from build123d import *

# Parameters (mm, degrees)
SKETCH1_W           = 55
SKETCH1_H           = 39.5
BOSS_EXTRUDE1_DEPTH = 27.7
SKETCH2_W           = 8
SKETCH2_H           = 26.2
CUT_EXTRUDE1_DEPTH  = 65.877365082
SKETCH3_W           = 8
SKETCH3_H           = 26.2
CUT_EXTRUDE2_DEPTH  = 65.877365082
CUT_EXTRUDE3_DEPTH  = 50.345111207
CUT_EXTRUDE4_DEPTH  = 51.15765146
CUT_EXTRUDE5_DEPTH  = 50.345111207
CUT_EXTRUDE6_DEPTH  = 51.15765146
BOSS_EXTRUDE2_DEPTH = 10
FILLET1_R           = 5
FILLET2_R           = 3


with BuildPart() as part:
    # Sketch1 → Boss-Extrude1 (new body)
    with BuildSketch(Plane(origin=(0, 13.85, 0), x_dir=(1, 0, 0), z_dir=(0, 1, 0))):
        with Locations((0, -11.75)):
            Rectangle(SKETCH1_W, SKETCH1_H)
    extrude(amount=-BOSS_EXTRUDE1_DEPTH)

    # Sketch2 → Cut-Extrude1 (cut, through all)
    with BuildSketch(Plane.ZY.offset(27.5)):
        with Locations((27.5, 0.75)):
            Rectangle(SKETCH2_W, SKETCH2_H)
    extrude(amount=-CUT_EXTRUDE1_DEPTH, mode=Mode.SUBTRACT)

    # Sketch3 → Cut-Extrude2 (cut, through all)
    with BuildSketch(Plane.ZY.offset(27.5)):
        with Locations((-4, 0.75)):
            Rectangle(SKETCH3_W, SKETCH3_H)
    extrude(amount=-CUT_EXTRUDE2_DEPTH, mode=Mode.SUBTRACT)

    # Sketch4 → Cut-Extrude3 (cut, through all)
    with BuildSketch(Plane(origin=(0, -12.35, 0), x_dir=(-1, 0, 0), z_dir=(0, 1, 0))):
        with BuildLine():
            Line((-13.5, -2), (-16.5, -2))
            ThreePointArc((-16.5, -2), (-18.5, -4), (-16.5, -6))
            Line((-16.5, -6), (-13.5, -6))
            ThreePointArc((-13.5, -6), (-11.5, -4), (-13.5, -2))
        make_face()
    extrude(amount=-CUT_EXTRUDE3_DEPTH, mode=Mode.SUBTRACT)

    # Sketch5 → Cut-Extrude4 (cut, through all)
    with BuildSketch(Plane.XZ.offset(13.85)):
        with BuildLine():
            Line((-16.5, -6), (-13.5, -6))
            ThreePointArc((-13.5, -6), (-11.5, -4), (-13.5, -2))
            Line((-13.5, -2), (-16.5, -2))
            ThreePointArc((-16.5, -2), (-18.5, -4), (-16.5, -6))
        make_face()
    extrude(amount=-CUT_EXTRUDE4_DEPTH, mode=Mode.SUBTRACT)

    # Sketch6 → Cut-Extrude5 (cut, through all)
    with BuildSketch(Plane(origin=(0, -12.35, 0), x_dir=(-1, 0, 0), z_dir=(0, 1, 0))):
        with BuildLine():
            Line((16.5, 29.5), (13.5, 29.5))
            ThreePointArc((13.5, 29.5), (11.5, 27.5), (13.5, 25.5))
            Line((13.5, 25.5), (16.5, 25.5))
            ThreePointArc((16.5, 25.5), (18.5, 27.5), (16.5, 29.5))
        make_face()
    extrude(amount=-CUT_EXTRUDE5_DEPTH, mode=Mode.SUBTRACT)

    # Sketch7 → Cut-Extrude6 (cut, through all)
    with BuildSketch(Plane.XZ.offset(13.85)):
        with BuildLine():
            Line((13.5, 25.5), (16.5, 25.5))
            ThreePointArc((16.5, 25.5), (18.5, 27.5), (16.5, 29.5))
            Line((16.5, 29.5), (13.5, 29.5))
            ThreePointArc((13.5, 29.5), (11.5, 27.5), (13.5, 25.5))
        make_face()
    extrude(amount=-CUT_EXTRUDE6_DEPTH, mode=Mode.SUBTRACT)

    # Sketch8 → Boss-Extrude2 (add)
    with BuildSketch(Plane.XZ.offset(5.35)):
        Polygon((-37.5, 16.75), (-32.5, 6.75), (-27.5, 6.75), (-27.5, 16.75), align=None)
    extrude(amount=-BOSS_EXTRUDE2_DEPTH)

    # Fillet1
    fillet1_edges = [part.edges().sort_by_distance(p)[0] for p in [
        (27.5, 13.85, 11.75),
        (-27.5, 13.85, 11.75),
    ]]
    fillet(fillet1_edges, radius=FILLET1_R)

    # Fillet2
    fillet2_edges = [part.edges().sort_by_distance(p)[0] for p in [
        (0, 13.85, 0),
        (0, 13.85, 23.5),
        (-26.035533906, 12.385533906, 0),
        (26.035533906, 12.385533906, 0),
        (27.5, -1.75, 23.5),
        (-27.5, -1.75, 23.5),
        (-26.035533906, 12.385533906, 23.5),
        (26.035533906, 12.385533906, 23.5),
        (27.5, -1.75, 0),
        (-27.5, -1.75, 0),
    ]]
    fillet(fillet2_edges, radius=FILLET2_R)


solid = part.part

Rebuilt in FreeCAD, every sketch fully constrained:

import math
import FreeCAD as App
import Part
import Sketcher
Q = App.Units.Quantity


def edges_at(feature, points):
    """Names of the edges that pass closest to the given points."""
    edges = feature.Shape.Edges
    near = lambda p: min(range(len(edges)), key=lambda i: edges[i].distToShape(Part.Vertex(*p))[0])
    return sorted({f"Edge{near(p) + 1}" for p in points})


def add_polygon(sketch, points):
    """Adds a closed chain of lines whose ends are joined by coincident constraints."""
    first, n = sketch.GeometryCount, len(points)
    for a, b in zip(points, points[1:] + points[:1]):
        sketch.addGeometry(Part.LineSegment(App.Vector(*a, 0), App.Vector(*b, 0)), False)
    for i in range(n):
        sketch.addConstraint(Sketcher.Constraint("Coincident", first + i, 2, first + (i + 1) % n, 1))

doc = App.newDocument("Part")
params = doc.addObject("Spreadsheet::Sheet", "Params")
for row, (alias, value) in enumerate([
    ("sketch1_width", "55 mm"),
    ("sketch1_height", "39.5 mm"),
    ("pad1_length", "27.7 mm"),
    ("sketch2_height", "8 mm"),
    ("sketch2_width", "26.2 mm"),
    ("sketch3_height", "8 mm"),
    ("sketch3_width", "26.2 mm"),
    ("sketch4_radius", "2 mm"),
    ("sketch4_width", "3 mm"),
    ("sketch5_radius", "2 mm"),
    ("sketch5_width", "3 mm"),
    ("sketch6_radius", "2 mm"),
    ("sketch6_width", "3 mm"),
    ("sketch7_radius", "2 mm"),
    ("sketch7_width", "3 mm"),
    ("sketch8_width", "5 mm"),
    ("sketch8_width2", "10 mm"),
    ("pad2_length", "10 mm"),
    ("fillet_radius", "5 mm"),
    ("fillet2_radius", "3 mm"),
], start=1):
    params.set(f"A{row}", alias)
    params.set(f"B{row}", "=" + value)
    params.setAlias(f"B{row}", alias)

body = doc.addObject("PartDesign::Body", "Body")

# Sketch on XZ plane
sketch1 = doc.addObject("Sketcher::SketchObject", "Sketch")
body.addObject(sketch1)
sketch1.AttachmentSupport = (doc.XZ_Plane, [""])
sketch1.MapMode = "FlatFace"
sketch1.AttachmentOffset = App.Placement(App.Vector(0, 0, -13.85), App.Rotation())
add_polygon(sketch1, [(-28, -8), (-28, 32), (28, 32), (28, -8)])  # lines 0-3
sketch1.addConstraint([
    Sketcher.Constraint("Vertical", 0),
    Sketcher.Constraint("Horizontal", 1),
    Sketcher.Constraint("Vertical", 2),
    Sketcher.Constraint("Horizontal", 3),
    Sketcher.Constraint("DistanceX", 1, 1, 1, 2, Q("55 mm")),
    Sketcher.Constraint("DistanceY", 0, 1, 0, 2, Q("39.5 mm")),
    Sketcher.Constraint("DistanceY", 2, 2, -1, 1, Q("8 mm")),
    Sketcher.Constraint("DistanceX", 0, 2, -1, 1, Q("27.5 mm")),
])
sketch1.setExpression("Constraints[8]", "Params.sketch1_width")
sketch1.setExpression("Constraints[9]", "Params.sketch1_height")
pad1 = doc.addObject("PartDesign::Pad", "Pad")
body.addObject(pad1)
pad1.Profile = sketch1
pad1.setExpression("Length", "Params.pad1_length")

# Sketch on YZ plane
sketch2 = doc.addObject("Sketcher::SketchObject", "Sketch001")
body.addObject(sketch2)
sketch2.AttachmentSupport = (doc.YZ_Plane, [""])
sketch2.MapMode = "FlatFace"
sketch2.AttachmentOffset = App.Placement(App.Vector(0, 0, -27.5), App.Rotation())
add_polygon(sketch2, [(14, 24), (-12, 24), (-12, 32), (14, 32)])  # lines 0-3
sketch2.addConstraint([
    Sketcher.Constraint("Horizontal", 0),
    Sketcher.Constraint("Vertical", 1),
    Sketcher.Constraint("Horizontal", 2),
    Sketcher.Constraint("Vertical", 3),
    Sketcher.Constraint("DistanceY", 1, 1, 1, 2, Q("8 mm")),
    Sketcher.Constraint("DistanceX", 0, 2, 0, 1, Q("26.2 mm")),
    Sketcher.Constraint("DistanceY", -1, 1, 0, 2, Q("23.5 mm")),
    Sketcher.Constraint("DistanceX", 0, 2, -1, 1, Q("12.35 mm")),
])
sketch2.setExpression("Constraints[8]", "Params.sketch2_height")
sketch2.setExpression("Constraints[9]", "Params.sketch2_width")
pocket1 = doc.addObject("PartDesign::Pocket", "Pocket")
body.addObject(pocket1)
pocket1.Profile = sketch2
pocket1.Type = "ThroughAll"
pocket1.Reversed = True

# Sketch on YZ plane
sketch3 = doc.addObject("Sketcher::SketchObject", "Sketch002")
body.addObject(sketch3)
sketch3.AttachmentSupport = (doc.YZ_Plane, [""])
sketch3.MapMode = "FlatFace"
sketch3.AttachmentOffset = App.Placement(App.Vector(0, 0, -27.5), App.Rotation())
add_polygon(sketch3, [(14, -8), (-12, -8), (-12, 0), (14, 0)])  # lines 0-3
sketch3.addConstraint([
    Sketcher.Constraint("Horizontal", 0),
    Sketcher.Constraint("Vertical", 1),
    Sketcher.Constraint("Horizontal", 2),
    Sketcher.Constraint("Vertical", 3),
    Sketcher.Constraint("PointOnObject", 1, 2, -1),
    Sketcher.Constraint("DistanceY", 1, 1, 1, 2, Q("8 mm")),
    Sketcher.Constraint("DistanceX", 0, 2, 0, 1, Q("26.2 mm")),
    Sketcher.Constraint("DistanceX", 0, 2, -1, 1, Q("12.35 mm")),
])
sketch3.setExpression("Constraints[9]", "Params.sketch3_height")
sketch3.setExpression("Constraints[10]", "Params.sketch3_width")
pocket2 = doc.addObject("PartDesign::Pocket", "Pocket001")
body.addObject(pocket2)
pocket2.Profile = sketch3
pocket2.Type = "ThroughAll"
pocket2.Reversed = True

# Sketch on XZ plane
sketch4 = doc.addObject("Sketcher::SketchObject", "Sketch003")
body.addObject(sketch4)
sketch4.AttachmentSupport = (doc.XZ_Plane, [""])
sketch4.MapMode = "FlatFace"
sketch4.AttachmentOffset = App.Placement(App.Vector(0, 0, 12.35), App.Rotation())
sketch4.addGeometry([
    Part.LineSegment(App.Vector(13.5, -2, 0), App.Vector(16.5, -2, 0)),
    Part.ArcOfCircle(Part.Circle(App.Vector(16.5, -4, 0), App.Vector(0, 0, 1), 2), math.radians(-90), math.radians(90)),
    Part.LineSegment(App.Vector(16.5, -6, 0), App.Vector(13.5, -6, 0)),
    Part.ArcOfCircle(Part.Circle(App.Vector(13.5, -4, 0), App.Vector(0, 0, 1), 2), math.radians(90), math.radians(270)),
], False)
sketch4.addConstraint([
    Sketcher.Constraint("Tangent", 0, 2, 1, 2),
    Sketcher.Constraint("Tangent", 1, 1, 2, 1),
    Sketcher.Constraint("Tangent", 2, 2, 3, 2),
    Sketcher.Constraint("Tangent", 3, 1, 0, 1),
    Sketcher.Constraint("Horizontal", 0),
    Sketcher.Constraint("Horizontal", 2),
    Sketcher.Constraint("Radius", 1, Q("2 mm")),
    Sketcher.Constraint("DistanceX", 0, 1, 0, 2, Q("3 mm")),
    Sketcher.Constraint("DistanceY", 1, 3, -1, 1, Q("4 mm")),
    Sketcher.Constraint("DistanceX", -1, 1, 1, 3, Q("16.5 mm")),
])
sketch4.setExpression("Constraints[6]", "Params.sketch4_radius")
sketch4.setExpression("Constraints[7]", "Params.sketch4_width")
pocket3 = doc.addObject("PartDesign::Pocket", "Pocket002")
body.addObject(pocket3)
pocket3.Profile = sketch4
pocket3.Type = "ThroughAll"
pocket3.Reversed = True

# Sketch on XZ plane
sketch5 = doc.addObject("Sketcher::SketchObject", "Sketch004")
body.addObject(sketch5)
sketch5.AttachmentSupport = (doc.XZ_Plane, [""])
sketch5.MapMode = "FlatFace"
sketch5.AttachmentOffset = App.Placement(App.Vector(0, 0, 13.85), App.Rotation())
sketch5.addGeometry([
    Part.LineSegment(App.Vector(-16.5, -6, 0), App.Vector(-13.5, -6, 0)),
    Part.ArcOfCircle(Part.Circle(App.Vector(-13.5, -4, 0), App.Vector(0, 0, 1), 2), math.radians(-90), math.radians(90)),
    Part.LineSegment(App.Vector(-13.5, -2, 0), App.Vector(-16.5, -2, 0)),
    Part.ArcOfCircle(Part.Circle(App.Vector(-16.5, -4, 0), App.Vector(0, 0, 1), 2), math.radians(90), math.radians(270)),
], False)
sketch5.addConstraint([
    Sketcher.Constraint("Tangent", 0, 2, 1, 1),
    Sketcher.Constraint("Tangent", 1, 2, 2, 1),
    Sketcher.Constraint("Tangent", 2, 2, 3, 1),
    Sketcher.Constraint("Tangent", 3, 2, 0, 1),
    Sketcher.Constraint("Horizontal", 0),
    Sketcher.Constraint("Horizontal", 2),
    Sketcher.Constraint("Radius", 1, Q("2 mm")),
    Sketcher.Constraint("DistanceX", 0, 1, 0, 2, Q("3 mm")),
    Sketcher.Constraint("DistanceY", 1, 3, -1, 1, Q("4 mm")),
    Sketcher.Constraint("DistanceX", 1, 3, -1, 1, Q("13.5 mm")),
])
sketch5.setExpression("Constraints[6]", "Params.sketch5_radius")
sketch5.setExpression("Constraints[7]", "Params.sketch5_width")
pocket4 = doc.addObject("PartDesign::Pocket", "Pocket003")
body.addObject(pocket4)
pocket4.Profile = sketch5
pocket4.Type = "ThroughAll"

# Sketch on XZ plane
sketch6 = doc.addObject("Sketcher::SketchObject", "Sketch005")
body.addObject(sketch6)
sketch6.AttachmentSupport = (doc.XZ_Plane, [""])
sketch6.MapMode = "FlatFace"
sketch6.AttachmentOffset = App.Placement(App.Vector(0, 0, 12.35), App.Rotation())
sketch6.addGeometry([
    Part.LineSegment(App.Vector(-16.5, 29.5, 0), App.Vector(-13.5, 29.5, 0)),
    Part.ArcOfCircle(Part.Circle(App.Vector(-13.5, 27.5, 0), App.Vector(0, 0, 1), 2), math.radians(-90), math.radians(90)),
    Part.LineSegment(App.Vector(-13.5, 25.5, 0), App.Vector(-16.5, 25.5, 0)),
    Part.ArcOfCircle(Part.Circle(App.Vector(-16.5, 27.5, 0), App.Vector(0, 0, 1), 2), math.radians(90), math.radians(270)),
], False)
sketch6.addConstraint([
    Sketcher.Constraint("Tangent", 0, 2, 1, 2),
    Sketcher.Constraint("Tangent", 1, 1, 2, 1),
    Sketcher.Constraint("Tangent", 2, 2, 3, 2),
    Sketcher.Constraint("Tangent", 3, 1, 0, 1),
    Sketcher.Constraint("Horizontal", 0),
    Sketcher.Constraint("Horizontal", 2),
    Sketcher.Constraint("Radius", 1, Q("2 mm")),
    Sketcher.Constraint("DistanceX", 0, 1, 0, 2, Q("3 mm")),
    Sketcher.Constraint("DistanceX", 1, 3, -1, 1, Q("13.5 mm")),
    Sketcher.Constraint("DistanceY", -1, 1, 1, 3, Q("27.5 mm")),
])
sketch6.setExpression("Constraints[6]", "Params.sketch6_radius")
sketch6.setExpression("Constraints[7]", "Params.sketch6_width")
pocket5 = doc.addObject("PartDesign::Pocket", "Pocket004")
body.addObject(pocket5)
pocket5.Profile = sketch6
pocket5.Type = "ThroughAll"
pocket5.Reversed = True

# Sketch on XZ plane
sketch7 = doc.addObject("Sketcher::SketchObject", "Sketch006")
body.addObject(sketch7)
sketch7.AttachmentSupport = (doc.XZ_Plane, [""])
sketch7.MapMode = "FlatFace"
sketch7.AttachmentOffset = App.Placement(App.Vector(0, 0, 13.85), App.Rotation())
sketch7.addGeometry([
    Part.LineSegment(App.Vector(13.5, 25.5, 0), App.Vector(16.5, 25.5, 0)),
    Part.ArcOfCircle(Part.Circle(App.Vector(16.5, 27.5, 0), App.Vector(0, 0, 1), 2), math.radians(-90), math.radians(90)),
    Part.LineSegment(App.Vector(16.5, 29.5, 0), App.Vector(13.5, 29.5, 0)),
    Part.ArcOfCircle(Part.Circle(App.Vector(13.5, 27.5, 0), App.Vector(0, 0, 1), 2), math.radians(90), math.radians(270)),
], False)
sketch7.addConstraint([
    Sketcher.Constraint("Tangent", 0, 2, 1, 1),
    Sketcher.Constraint("Tangent", 1, 2, 2, 1),
    Sketcher.Constraint("Tangent", 2, 2, 3, 1),
    Sketcher.Constraint("Tangent", 3, 2, 0, 1),
    Sketcher.Constraint("Horizontal", 0),
    Sketcher.Constraint("Horizontal", 2),
    Sketcher.Constraint("Radius", 1, Q("2 mm")),
    Sketcher.Constraint("DistanceX", 0, 1, 0, 2, Q("3 mm")),
    Sketcher.Constraint("DistanceX", -1, 1, 1, 3, Q("16.5 mm")),
    Sketcher.Constraint("DistanceY", -1, 1, 1, 3, Q("27.5 mm")),
])
sketch7.setExpression("Constraints[6]", "Params.sketch7_radius")
sketch7.setExpression("Constraints[7]", "Params.sketch7_width")
pocket6 = doc.addObject("PartDesign::Pocket", "Pocket005")
body.addObject(pocket6)
pocket6.Profile = sketch7
pocket6.Type = "ThroughAll"

# Sketch on XZ plane
sketch8 = doc.addObject("Sketcher::SketchObject", "Sketch007")
body.addObject(sketch8)
sketch8.AttachmentSupport = (doc.XZ_Plane, [""])
sketch8.MapMode = "FlatFace"
sketch8.AttachmentOffset = App.Placement(App.Vector(0, 0, 5.35), App.Rotation())
add_polygon(sketch8, [(-38, 17), (-32, 7), (-28, 7), (-28, 17)])  # lines 0-3
sketch8.addConstraint([
    Sketcher.Constraint("Horizontal", 1),
    Sketcher.Constraint("Vertical", 2),
    Sketcher.Constraint("Horizontal", 3),
    Sketcher.Constraint("Equal", 3, 2),
    Sketcher.Constraint("DistanceX", 1, 1, 1, 2, Q("5 mm")),
    Sketcher.Constraint("DistanceX", 3, 2, 3, 1, Q("10 mm")),
    Sketcher.Constraint("DistanceX", 0, 2, -1, 1, Q("32.5 mm")),
    Sketcher.Constraint("DistanceY", -1, 1, 0, 2, Q("6.75 mm")),
])
sketch8.setExpression("Constraints[8]", "Params.sketch8_width")
sketch8.setExpression("Constraints[9]", "Params.sketch8_width2")
pad2 = doc.addObject("PartDesign::Pad", "Pad001")
body.addObject(pad2)
pad2.Profile = sketch8
pad2.setExpression("Length", "Params.pad2_length")
pad2.Reversed = True
doc.recompute()

fillet = doc.addObject("PartDesign::Fillet", "Fillet")
body.addObject(fillet)
fillet.Base = (pad2, edges_at(pad2, [(27.5, 13.85, 11.75), (-27.5, 13.85, 11.75)]))
fillet.setExpression("Radius", "Params.fillet_radius")
doc.recompute()

fillet2 = doc.addObject("PartDesign::Fillet", "Fillet001")
body.addObject(fillet2)
fillet2.Base = (fillet, edges_at(fillet, [
    (0, 13.85, 0),
    (0, 13.85, 23.5),
    (-26.036, 12.386, 0),
    (26.036, 12.386, 0),
    (27.5, -1.75, 23.5),
    (-27.5, -1.75, 23.5),
    (-26.036, 12.386, 23.5),
    (26.036, 12.386, 23.5),
    (27.5, -1.75, 0),
    (-27.5, -1.75, 0),
]))
fillet2.setExpression("Radius", "Params.fillet2_radius")

doc.recompute()
